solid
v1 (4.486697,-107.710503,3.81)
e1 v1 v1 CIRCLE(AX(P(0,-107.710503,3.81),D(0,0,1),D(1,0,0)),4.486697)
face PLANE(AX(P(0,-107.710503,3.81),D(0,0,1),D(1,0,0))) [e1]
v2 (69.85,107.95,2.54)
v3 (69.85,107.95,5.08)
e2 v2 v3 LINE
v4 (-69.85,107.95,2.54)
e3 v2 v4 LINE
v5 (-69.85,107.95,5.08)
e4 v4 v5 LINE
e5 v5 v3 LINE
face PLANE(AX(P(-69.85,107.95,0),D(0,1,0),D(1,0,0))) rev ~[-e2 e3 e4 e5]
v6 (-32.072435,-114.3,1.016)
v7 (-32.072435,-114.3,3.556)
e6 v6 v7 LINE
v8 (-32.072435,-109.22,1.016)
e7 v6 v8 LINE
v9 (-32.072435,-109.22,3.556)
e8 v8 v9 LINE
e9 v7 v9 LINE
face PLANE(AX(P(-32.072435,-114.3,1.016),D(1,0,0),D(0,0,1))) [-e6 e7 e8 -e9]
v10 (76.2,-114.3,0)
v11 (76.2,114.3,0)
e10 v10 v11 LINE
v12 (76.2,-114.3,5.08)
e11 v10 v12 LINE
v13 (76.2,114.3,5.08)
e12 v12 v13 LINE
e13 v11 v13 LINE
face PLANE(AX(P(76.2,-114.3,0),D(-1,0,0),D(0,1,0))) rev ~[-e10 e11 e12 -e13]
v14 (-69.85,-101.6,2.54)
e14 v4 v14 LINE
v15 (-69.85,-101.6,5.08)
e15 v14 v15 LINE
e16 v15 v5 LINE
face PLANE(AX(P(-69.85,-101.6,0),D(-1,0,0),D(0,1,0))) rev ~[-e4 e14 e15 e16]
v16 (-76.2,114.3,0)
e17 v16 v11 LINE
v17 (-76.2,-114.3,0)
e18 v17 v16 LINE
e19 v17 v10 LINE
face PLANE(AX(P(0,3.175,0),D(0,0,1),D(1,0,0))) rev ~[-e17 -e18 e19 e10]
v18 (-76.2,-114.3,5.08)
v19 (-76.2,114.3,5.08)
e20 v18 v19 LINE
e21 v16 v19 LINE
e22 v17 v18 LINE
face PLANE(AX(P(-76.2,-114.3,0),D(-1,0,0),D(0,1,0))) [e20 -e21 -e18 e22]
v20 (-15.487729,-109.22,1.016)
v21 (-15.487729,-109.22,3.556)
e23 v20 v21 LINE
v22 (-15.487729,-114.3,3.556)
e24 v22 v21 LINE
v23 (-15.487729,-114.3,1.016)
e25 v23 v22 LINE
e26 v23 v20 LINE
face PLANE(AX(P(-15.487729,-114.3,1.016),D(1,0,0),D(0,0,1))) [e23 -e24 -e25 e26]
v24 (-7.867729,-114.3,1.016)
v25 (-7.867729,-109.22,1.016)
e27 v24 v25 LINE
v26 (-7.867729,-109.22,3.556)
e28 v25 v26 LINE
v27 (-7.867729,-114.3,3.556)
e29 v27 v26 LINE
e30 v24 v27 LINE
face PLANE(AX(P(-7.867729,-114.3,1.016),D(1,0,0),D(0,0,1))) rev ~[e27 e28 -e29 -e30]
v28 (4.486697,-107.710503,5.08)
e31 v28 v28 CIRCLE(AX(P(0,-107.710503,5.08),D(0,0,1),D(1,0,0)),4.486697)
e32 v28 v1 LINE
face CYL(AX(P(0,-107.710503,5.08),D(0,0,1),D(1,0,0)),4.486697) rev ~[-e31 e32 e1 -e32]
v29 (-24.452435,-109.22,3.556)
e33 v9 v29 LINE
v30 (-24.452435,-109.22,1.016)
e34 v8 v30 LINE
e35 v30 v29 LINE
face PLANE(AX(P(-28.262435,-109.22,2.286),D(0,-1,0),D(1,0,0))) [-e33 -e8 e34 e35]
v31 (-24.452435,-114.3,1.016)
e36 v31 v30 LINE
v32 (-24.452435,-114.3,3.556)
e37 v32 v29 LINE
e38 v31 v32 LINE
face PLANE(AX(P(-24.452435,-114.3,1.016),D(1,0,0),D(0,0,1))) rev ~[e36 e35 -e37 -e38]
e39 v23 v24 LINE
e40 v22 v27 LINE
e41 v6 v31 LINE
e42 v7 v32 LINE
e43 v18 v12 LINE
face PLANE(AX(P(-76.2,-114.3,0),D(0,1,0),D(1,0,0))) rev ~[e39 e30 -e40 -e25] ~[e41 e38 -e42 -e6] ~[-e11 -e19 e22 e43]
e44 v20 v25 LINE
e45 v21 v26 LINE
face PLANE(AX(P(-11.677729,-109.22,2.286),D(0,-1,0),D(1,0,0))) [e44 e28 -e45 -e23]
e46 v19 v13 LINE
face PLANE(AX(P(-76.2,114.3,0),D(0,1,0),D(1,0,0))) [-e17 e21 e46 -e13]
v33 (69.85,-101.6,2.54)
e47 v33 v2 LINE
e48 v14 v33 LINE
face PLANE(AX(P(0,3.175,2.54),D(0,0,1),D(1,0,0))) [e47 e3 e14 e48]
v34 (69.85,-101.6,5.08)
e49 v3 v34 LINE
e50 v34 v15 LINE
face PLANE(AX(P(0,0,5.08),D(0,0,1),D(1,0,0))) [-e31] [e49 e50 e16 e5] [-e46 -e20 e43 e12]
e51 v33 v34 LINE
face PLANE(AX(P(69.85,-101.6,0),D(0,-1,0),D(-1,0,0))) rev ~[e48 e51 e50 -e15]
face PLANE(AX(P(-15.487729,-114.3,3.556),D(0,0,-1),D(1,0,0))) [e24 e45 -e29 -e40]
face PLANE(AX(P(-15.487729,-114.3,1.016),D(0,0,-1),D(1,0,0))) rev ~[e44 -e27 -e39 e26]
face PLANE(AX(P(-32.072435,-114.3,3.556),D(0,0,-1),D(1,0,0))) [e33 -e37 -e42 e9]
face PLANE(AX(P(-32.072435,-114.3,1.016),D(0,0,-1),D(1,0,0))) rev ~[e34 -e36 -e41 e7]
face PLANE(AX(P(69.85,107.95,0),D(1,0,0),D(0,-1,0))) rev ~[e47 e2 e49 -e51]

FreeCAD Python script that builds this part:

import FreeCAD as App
import Part
import Sketcher

V = App.Vector
Q = App.Units.Quantity

doc = App.newDocument("Part")
body = doc.addObject("PartDesign::Body", "Body")

# Sketch on XY plane
sketch1 = body.newObject("Sketcher::SketchObject", "Sketch")
sketch1.AttachmentSupport = (doc.getObject("XY_Plane"), [""])
sketch1.MapMode = "FlatFace"
sketch1.addGeometry(Part.LineSegment(V(-76, 114, 0), V(-76, -114, 0)), False)
sketch1.addGeometry(Part.LineSegment(V(-76, -114, 0), V(76, -114, 0)), False)
sketch1.addGeometry(Part.LineSegment(V(76, -114, 0), V(76, 114, 0)), False)
sketch1.addGeometry(Part.LineSegment(V(76, 114, 0), V(-76, 114, 0)), False)
sketch1.addGeometry(Part.LineSegment(V(70, 108, 0), V(70, -102, 0)), False)
sketch1.addGeometry(Part.LineSegment(V(70, -102, 0), V(-70, -102, 0)), False)
sketch1.addGeometry(Part.LineSegment(V(-70, -102, 0), V(-70, 108, 0)), False)
sketch1.addGeometry(Part.LineSegment(V(-70, 108, 0), V(70, 108, 0)), False)
sketch1.addConstraint(Sketcher.Constraint("Coincident", 0, 2, 1, 1))
sketch1.addConstraint(Sketcher.Constraint("Coincident", 1, 2, 2, 1))
sketch1.addConstraint(Sketcher.Constraint("Coincident", 2, 2, 3, 1))
sketch1.addConstraint(Sketcher.Constraint("Coincident", 3, 2, 0, 1))
sketch1.addConstraint(Sketcher.Constraint("Coincident", 4, 2, 5, 1))
sketch1.addConstraint(Sketcher.Constraint("Coincident", 5, 2, 6, 1))
sketch1.addConstraint(Sketcher.Constraint("Coincident", 6, 2, 7, 1))
sketch1.addConstraint(Sketcher.Constraint("Coincident", 7, 2, 4, 1))
sketch1.addConstraint(Sketcher.Constraint("Vertical", 0))
sketch1.addConstraint(Sketcher.Constraint("Horizontal", 1))
sketch1.addConstraint(Sketcher.Constraint("Vertical", 2))
sketch1.addConstraint(Sketcher.Constraint("Horizontal", 3))
sketch1.addConstraint(Sketcher.Constraint("Vertical", 4))
sketch1.addConstraint(Sketcher.Constraint("Horizontal", 5))
sketch1.addConstraint(Sketcher.Constraint("Vertical", 6))
sketch1.addConstraint(Sketcher.Constraint("Horizontal", 7))
sketch1.addConstraint(Sketcher.Constraint("Symmetric", 0, 2, 2, 2, -1, 1))
sketch1.addConstraint(Sketcher.Constraint("DistanceX", 1, 1, 1, 2, Q("6 in")))
sketch1.addConstraint(Sketcher.Constraint("DistanceY", 0, 2, 0, 1, Q("9 in")))
sketch1.addConstraint(Sketcher.Constraint("DistanceX", 5, 2, 5, 1, Q("5.5 in")))
sketch1.addConstraint(Sketcher.Constraint("DistanceY", 4, 2, -1, 1, Q("4 in")))
sketch1.addConstraint(Sketcher.Constraint("DistanceY", 4, 2, 4, 1, Q("8.25 in")))
sketch1.addConstraint(Sketcher.Constraint("DistanceX", -1, 1, 4, 2, Q("2.75 in")))
pad1 = body.newObject("PartDesign::Pad", "Pad")
pad1.Profile = sketch1
pad1.Length = Q("0.2 in")

# Sketch on XY plane
sketch2 = body.newObject("Sketcher::SketchObject", "Sketch001")
sketch2.AttachmentSupport = (doc.getObject("XY_Plane"), [""])
sketch2.MapMode = "FlatFace"
sketch2.addGeometry(Part.LineSegment(V(-70, -102, 0), V(70, -102, 0)), False)
sketch2.addGeometry(Part.LineSegment(V(70, -102, 0), V(70, 108, 0)), False)
sketch2.addGeometry(Part.LineSegment(V(70, 108, 0), V(-70, 108, 0)), False)
sketch2.addGeometry(Part.LineSegment(V(-70, 108, 0), V(-70, -102, 0)), False)
sketch2.addConstraint(Sketcher.Constraint("Coincident", 0, 2, 1, 1))
sketch2.addConstraint(Sketcher.Constraint("Coincident", 1, 2, 2, 1))
sketch2.addConstraint(Sketcher.Constraint("Coincident", 2, 2, 3, 1))
sketch2.addConstraint(Sketcher.Constraint("Coincident", 3, 2, 0, 1))
sketch2.addConstraint(Sketcher.Constraint("Horizontal", 0))
sketch2.addConstraint(Sketcher.Constraint("Vertical", 1))
sketch2.addConstraint(Sketcher.Constraint("Horizontal", 2))
sketch2.addConstraint(Sketcher.Constraint("Vertical", 3))
sketch2.addConstraint(Sketcher.Constraint("DistanceX", 0, 1, 0, 2, Q("5.5 in")))
sketch2.addConstraint(Sketcher.Constraint("DistanceY", 0, 2, -1, 1, Q("4 in")))
sketch2.addConstraint(Sketcher.Constraint("DistanceY", 1, 1, 1, 2, Q("8.25 in")))
sketch2.addConstraint(Sketcher.Constraint("DistanceX", -1, 1, 0, 2, Q("2.75 in")))
pad2 = body.newObject("PartDesign::Pad", "Pad001")
pad2.Profile = sketch2
pad2.Length = Q("0.1 in")

# Sketch on XY plane
sketch3 = body.newObject("Sketcher::SketchObject", "Sketch002")
sketch3.AttachmentSupport = (doc.getObject("XY_Plane"), [""])
sketch3.MapMode = "FlatFace"
sketch3.AttachmentOffset = App.Placement(V(0, 0, 0.2 * 25.4), App.Rotation())
sketch3.addGeometry(Part.Circle(V(0, -107.7, 0), V(0, 0, 1), 4.5), False)
sketch3.addConstraint(Sketcher.Constraint("PointOnObject", 0, 3, -2))
sketch3.addConstraint(Sketcher.Constraint("Diameter", 0, Q("8.973394 mm")))
sketch3.addConstraint(Sketcher.Constraint("DistanceY", 0, 3, -1, 1, Q("107.710503 mm")))
pocket1 = body.newObject("PartDesign::Pocket", "Pocket")
pocket1.Profile = sketch3
pocket1.Length = Q("0.05 in")

# Sketch on XZ plane
sketch4 = body.newObject("Sketcher::SketchObject", "Sketch003")
sketch4.AttachmentSupport = (doc.getObject("XZ_Plane"), [""])
sketch4.MapMode = "FlatFace"
sketch4.AttachmentOffset = App.Placement(V(0, 0, 4.5 * 25.4), App.Rotation())
sketch4.addGeometry(Part.LineSegment(V(-32.1, 3.6, 0), V(-32.1, 1, 0)), False)
sketch4.addGeometry(Part.LineSegment(V(-32.1, 1, 0), V(-24.5, 1, 0)), False)
sketch4.addGeometry(Part.LineSegment(V(-24.5, 1, 0), V(-24.5, 3.6, 0)), False)
sketch4.addGeometry(Part.LineSegment(V(-24.5, 3.6, 0), V(-32.1, 3.6, 0)), False)
sketch4.addGeometry(Part.LineSegment(V(-15.5, 3.6, 0), V(-15.5, 1, 0)), False)
sketch4.addGeometry(Part.LineSegment(V(-15.5, 1, 0), V(-7.9, 1, 0)), False)
sketch4.addGeometry(Part.LineSegment(V(-7.9, 1, 0), V(-7.9, 3.6, 0)), False)
sketch4.addGeometry(Part.LineSegment(V(-7.9, 3.6, 0), V(-15.5, 3.6, 0)), False)
sketch4.addConstraint(Sketcher.Constraint("Coincident", 0, 2, 1, 1))
sketch4.addConstraint(Sketcher.Constraint("Coincident", 1, 2, 2, 1))
sketch4.addConstraint(Sketcher.Constraint("Coincident", 2, 2, 3, 1))
sketch4.addConstraint(Sketcher.Constraint("Coincident", 3, 2, 0, 1))
sketch4.addConstraint(Sketcher.Constraint("Coincident", 4, 2, 5, 1))
sketch4.addConstraint(Sketcher.Constraint("Coincident", 5, 2, 6, 1))
sketch4.addConstraint(Sketcher.Constraint("Coincident", 6, 2, 7, 1))
sketch4.addConstraint(Sketcher.Constraint("Coincident", 7, 2, 4, 1))
sketch4.addConstraint(Sketcher.Constraint("Vertical", 0))
sketch4.addConstraint(Sketcher.Constraint("Horizontal", 1))
sketch4.addConstraint(Sketcher.Constraint("Vertical", 2))
sketch4.addConstraint(Sketcher.Constraint("Horizontal", 3))
sketch4.addConstraint(Sketcher.Constraint("Vertical", 4))
sketch4.addConstraint(Sketcher.Constraint("Horizontal", 5))
sketch4.addConstraint(Sketcher.Constraint("Vertical", 6))
sketch4.addConstraint(Sketcher.Constraint("Horizontal", 7))
sketch4.addConstraint(Sketcher.Constraint("Horizontal", 1, 2, 4, 2))
sketch4.addConstraint(Sketcher.Constraint("Horizontal", 3, 2, 6, 2))
sketch4.addConstraint(Sketcher.Constraint("Equal", 3, 5))
sketch4.addConstraint(Sketcher.Constraint("DistanceX", 1, 1, 1, 2, Q("0.3 in")))
sketch4.addConstraint(Sketcher.Constraint("DistanceY", 0, 2, 0, 1, Q("0.1 in")))
sketch4.addConstraint(Sketcher.Constraint("DistanceY", -1, 1, 0, 2, Q("0.04 in")))
sketch4.addConstraint(Sketcher.Constraint("DistanceX", 4, 2, -1, 1, Q("15.487729 mm")))
sketch4.addConstraint(Sketcher.Constraint("DistanceX", 0, 2, -1, 1, Q("32.072435 mm")))
pocket2 = body.newObject("PartDesign::Pocket", "Pocket001")
pocket2.Profile = sketch4
pocket2.Length = Q("0.2 in")

doc.recompute()
